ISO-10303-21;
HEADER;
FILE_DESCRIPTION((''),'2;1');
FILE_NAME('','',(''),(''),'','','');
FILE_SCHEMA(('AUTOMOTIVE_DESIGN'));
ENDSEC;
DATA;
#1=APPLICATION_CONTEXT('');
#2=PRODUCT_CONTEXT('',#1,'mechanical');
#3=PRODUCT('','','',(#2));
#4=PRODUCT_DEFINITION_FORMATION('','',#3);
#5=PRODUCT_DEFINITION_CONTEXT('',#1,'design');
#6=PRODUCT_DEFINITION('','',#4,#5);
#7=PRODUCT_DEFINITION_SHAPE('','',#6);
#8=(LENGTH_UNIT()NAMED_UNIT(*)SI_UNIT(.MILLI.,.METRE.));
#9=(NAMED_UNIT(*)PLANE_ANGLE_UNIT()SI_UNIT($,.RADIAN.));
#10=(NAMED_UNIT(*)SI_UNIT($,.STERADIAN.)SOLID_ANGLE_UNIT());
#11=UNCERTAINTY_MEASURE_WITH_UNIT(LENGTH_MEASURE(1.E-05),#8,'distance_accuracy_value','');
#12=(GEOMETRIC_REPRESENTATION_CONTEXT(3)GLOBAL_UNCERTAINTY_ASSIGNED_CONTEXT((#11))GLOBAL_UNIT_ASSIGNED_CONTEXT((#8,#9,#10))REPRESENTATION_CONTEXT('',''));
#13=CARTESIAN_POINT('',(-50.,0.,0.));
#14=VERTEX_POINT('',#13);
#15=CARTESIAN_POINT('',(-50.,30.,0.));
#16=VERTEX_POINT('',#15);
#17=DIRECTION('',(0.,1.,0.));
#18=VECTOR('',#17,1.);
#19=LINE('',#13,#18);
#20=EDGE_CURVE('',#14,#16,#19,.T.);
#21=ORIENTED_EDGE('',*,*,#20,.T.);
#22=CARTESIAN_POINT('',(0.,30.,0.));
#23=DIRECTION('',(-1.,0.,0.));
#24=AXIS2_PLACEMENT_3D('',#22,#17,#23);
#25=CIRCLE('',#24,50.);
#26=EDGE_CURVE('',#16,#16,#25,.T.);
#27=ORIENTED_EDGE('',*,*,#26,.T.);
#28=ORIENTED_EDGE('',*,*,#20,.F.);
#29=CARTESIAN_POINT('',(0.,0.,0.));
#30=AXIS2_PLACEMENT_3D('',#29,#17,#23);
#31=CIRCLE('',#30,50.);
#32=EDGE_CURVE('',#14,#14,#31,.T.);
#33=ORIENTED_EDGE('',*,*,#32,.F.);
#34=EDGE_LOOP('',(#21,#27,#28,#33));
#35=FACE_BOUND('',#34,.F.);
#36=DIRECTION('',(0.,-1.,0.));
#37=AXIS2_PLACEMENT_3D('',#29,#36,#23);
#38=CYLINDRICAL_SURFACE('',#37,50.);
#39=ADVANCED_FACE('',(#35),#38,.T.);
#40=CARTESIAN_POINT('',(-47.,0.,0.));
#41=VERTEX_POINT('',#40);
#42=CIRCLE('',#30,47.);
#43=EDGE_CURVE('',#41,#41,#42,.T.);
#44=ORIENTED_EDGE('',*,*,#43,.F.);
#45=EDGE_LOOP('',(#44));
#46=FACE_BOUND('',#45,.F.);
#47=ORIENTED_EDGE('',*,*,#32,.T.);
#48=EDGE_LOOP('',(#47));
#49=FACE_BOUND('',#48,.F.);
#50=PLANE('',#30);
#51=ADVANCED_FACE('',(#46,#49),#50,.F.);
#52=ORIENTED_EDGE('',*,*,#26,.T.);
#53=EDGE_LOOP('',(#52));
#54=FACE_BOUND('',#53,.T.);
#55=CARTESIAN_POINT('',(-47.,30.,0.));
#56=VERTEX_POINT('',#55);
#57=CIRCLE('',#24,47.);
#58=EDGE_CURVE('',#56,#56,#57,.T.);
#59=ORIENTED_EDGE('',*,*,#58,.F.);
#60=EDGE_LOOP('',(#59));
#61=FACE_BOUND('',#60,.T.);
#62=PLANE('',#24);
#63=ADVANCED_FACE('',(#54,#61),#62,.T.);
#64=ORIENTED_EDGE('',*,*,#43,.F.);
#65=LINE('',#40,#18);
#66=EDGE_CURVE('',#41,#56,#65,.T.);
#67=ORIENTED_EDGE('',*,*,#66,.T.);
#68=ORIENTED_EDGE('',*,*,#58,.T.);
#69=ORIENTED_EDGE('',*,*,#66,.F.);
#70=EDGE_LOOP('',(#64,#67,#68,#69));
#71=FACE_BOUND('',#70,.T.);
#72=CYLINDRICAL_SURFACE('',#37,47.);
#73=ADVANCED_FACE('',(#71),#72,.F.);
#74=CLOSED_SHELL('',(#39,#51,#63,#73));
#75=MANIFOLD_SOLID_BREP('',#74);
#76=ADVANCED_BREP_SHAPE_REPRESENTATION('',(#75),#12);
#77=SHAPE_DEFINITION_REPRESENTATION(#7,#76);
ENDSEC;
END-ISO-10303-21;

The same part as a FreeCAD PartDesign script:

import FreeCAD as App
import Part
import Sketcher

V = App.Vector
Q = App.Units.Quantity

doc = App.newDocument("Part")
body = doc.addObject("PartDesign::Body", "Body")

# Sketch on XZ plane
sketch1 = doc.addObject("Sketcher::SketchObject", "Sketch")
body.addObject(sketch1)
sketch1.AttachmentSupport = (doc.XZ_Plane, [""])
sketch1.MapMode = "FlatFace"
sketch1.addGeometry([
    Part.Circle(V(0, 0, 0), V(0, 0, 1), 50),
    Part.Circle(V(0, 0, 0), V(0, 0, 1), 47),
], False)
sketch1.addConstraint([
    Sketcher.Constraint("Coincident", 0, 3, -1, 1),
    Sketcher.Constraint("Coincident", 1, 3, -1, 1),
    Sketcher.Constraint("Diameter", 0, Q("100 mm")),
    Sketcher.Constraint("Diameter", 1, Q("94 mm")),
])
pad1 = doc.addObject("PartDesign::Pad", "Pad")
body.addObject(pad1)
pad1.Profile = sketch1
pad1.Length = 30
pad1.Reversed = True

doc.recompute()
